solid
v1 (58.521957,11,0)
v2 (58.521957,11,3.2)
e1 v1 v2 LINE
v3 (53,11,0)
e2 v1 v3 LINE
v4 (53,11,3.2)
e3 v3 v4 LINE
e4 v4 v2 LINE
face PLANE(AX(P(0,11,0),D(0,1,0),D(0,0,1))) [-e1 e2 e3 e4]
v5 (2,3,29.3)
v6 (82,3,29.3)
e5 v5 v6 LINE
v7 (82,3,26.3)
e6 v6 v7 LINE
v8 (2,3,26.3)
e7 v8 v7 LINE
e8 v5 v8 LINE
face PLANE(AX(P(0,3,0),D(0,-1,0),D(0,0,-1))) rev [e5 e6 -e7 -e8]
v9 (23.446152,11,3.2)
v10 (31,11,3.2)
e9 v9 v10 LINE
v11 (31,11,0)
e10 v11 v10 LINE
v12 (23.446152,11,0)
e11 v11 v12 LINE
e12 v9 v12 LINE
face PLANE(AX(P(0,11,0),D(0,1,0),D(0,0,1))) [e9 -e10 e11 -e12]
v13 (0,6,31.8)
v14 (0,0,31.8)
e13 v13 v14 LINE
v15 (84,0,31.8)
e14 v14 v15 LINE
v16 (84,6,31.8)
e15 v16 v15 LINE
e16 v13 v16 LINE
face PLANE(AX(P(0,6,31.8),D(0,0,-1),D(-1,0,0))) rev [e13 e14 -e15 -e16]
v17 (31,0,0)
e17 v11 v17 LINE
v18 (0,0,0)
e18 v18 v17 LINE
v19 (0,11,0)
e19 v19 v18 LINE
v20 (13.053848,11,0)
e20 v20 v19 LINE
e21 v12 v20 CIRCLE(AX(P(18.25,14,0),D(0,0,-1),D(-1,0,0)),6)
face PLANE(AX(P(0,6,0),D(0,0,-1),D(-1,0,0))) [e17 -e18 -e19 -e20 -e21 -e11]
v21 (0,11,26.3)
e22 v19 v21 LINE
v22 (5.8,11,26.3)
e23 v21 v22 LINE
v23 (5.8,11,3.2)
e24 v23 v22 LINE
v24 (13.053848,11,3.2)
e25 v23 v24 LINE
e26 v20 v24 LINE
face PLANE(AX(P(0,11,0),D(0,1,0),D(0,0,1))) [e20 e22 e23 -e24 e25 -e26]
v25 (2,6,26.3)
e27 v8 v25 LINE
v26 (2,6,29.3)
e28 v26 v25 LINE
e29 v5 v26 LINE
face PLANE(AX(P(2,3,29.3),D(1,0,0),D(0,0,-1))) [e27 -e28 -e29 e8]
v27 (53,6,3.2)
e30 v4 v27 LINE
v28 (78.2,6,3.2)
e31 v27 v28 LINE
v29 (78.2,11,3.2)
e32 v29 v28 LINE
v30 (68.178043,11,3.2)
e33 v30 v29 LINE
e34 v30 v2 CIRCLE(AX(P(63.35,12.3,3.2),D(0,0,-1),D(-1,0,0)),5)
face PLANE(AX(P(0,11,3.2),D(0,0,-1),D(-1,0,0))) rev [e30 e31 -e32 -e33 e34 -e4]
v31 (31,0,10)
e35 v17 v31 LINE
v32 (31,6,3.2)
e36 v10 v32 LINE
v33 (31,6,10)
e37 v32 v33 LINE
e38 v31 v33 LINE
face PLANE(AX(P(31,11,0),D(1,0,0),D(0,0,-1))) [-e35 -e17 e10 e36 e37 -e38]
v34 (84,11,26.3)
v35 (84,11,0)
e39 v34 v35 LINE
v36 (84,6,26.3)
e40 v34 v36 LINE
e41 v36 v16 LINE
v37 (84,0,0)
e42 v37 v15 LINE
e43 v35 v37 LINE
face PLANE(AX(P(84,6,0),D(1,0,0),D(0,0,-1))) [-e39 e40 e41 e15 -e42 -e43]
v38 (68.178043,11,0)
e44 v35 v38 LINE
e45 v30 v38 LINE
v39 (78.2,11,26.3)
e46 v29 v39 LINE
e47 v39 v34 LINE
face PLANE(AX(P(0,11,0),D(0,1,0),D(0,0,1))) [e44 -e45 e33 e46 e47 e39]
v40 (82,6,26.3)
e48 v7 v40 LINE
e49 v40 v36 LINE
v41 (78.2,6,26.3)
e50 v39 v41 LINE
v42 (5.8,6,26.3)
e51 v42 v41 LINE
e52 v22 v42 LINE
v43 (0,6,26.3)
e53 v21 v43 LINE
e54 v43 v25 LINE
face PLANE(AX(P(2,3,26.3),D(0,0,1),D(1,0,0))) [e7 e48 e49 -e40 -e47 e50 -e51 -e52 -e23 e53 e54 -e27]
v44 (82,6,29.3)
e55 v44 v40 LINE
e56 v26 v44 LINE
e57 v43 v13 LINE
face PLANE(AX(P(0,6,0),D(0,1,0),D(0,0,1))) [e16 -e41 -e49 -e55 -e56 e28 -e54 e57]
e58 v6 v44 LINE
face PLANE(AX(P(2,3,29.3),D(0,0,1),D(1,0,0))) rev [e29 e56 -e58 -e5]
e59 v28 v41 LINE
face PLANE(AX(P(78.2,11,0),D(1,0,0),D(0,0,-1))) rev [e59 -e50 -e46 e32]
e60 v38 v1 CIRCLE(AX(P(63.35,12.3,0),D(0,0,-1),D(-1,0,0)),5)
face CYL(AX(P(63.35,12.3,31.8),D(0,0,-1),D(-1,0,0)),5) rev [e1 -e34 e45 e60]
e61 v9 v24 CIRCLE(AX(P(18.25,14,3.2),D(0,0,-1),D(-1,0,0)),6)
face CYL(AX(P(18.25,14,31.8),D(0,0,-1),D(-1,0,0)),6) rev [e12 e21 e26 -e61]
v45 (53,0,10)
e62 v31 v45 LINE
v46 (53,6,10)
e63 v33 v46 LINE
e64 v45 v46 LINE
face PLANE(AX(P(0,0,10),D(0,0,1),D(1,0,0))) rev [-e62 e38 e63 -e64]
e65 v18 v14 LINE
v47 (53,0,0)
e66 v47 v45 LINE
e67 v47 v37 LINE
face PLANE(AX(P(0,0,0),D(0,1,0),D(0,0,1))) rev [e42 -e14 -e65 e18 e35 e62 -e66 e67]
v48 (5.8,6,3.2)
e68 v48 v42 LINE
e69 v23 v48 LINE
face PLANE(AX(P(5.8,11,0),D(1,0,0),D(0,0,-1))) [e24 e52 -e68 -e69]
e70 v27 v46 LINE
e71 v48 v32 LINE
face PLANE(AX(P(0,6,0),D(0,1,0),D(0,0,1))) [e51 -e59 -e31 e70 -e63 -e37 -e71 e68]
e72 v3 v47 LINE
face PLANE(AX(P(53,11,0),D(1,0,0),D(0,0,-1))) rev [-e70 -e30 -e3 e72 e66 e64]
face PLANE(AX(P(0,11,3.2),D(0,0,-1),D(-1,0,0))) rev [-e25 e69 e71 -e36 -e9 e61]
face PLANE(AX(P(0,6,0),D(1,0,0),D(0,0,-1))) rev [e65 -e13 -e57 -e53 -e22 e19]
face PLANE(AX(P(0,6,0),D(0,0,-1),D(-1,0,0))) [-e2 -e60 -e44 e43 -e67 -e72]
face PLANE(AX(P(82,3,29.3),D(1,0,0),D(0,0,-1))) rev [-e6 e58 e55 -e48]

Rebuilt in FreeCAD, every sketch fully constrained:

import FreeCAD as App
import Part
import Sketcher

V = App.Vector
Q = App.Units.Quantity


def add_polygon(sketch, points):
    """Adds a closed chain of lines whose ends are joined by coincident constraints."""
    first, n = sketch.GeometryCount, len(points)
    for a, b in zip(points, points[1:] + points[:1]):
        sketch.addGeometry(Part.LineSegment(App.Vector(*a, 0), App.Vector(*b, 0)), False)
    for i in range(n):
        sketch.addConstraint(Sketcher.Constraint("Coincident", first + i, 2, first + (i + 1) % n, 1))

doc = App.newDocument("Part")
body = doc.addObject("PartDesign::Body", "Body")

sketch1 = body.newObject("Sketcher::SketchObject", "Sketch")
sketch1.AttachmentSupport = (doc.getObject("XZ_Plane"), [""])
sketch1.MapMode = "FlatFace"
add_polygon(sketch1, [(0, 0), (0, 31.8), (84, 31.8), (84, 0)])
sketch1.addConstraint(Sketcher.Constraint("Vertical", 0))
sketch1.addConstraint(Sketcher.Constraint("Horizontal", 1))
sketch1.addConstraint(Sketcher.Constraint("Vertical", 2))
sketch1.addConstraint(Sketcher.Constraint("Horizontal", 3))
sketch1.addConstraint(Sketcher.Constraint("Coincident", 3, 2, -1, 1))
sketch1.addConstraint(Sketcher.Constraint("DistanceX", 1, 1, 1, 2, Q("84 mm")))
sketch1.addConstraint(Sketcher.Constraint("DistanceY", 0, 1, 0, 2, Q("31.8 mm")))
pad1 = body.newObject("PartDesign::Pad", "Pad")
pad1.Profile = sketch1
pad1.Length = 6
pad1.Reversed = True

sketch2 = body.newObject("Sketcher::SketchObject", "Sketch001")
sketch2.AttachmentSupport = (doc.getObject("XZ_Plane"), [""])
sketch2.MapMode = "FlatFace"
sketch2.AttachmentOffset = App.Placement(V(0, 0, -6), App.Rotation())
add_polygon(sketch2, [(2, 26.3), (2, 29.3), (82, 29.3), (82, 26.3)])
sketch2.addConstraint(Sketcher.Constraint("Vertical", 0))
sketch2.addConstraint(Sketcher.Constraint("Horizontal", 1))
sketch2.addConstraint(Sketcher.Constraint("Vertical", 2))
sketch2.addConstraint(Sketcher.Constraint("Horizontal", 3))
sketch2.addConstraint(Sketcher.Constraint("DistanceX", 1, 1, 1, 2, Q("80 mm")))
sketch2.addConstraint(Sketcher.Constraint("DistanceY", 0, 1, 0, 2, Q("3 mm")))
sketch2.addConstraint(Sketcher.Constraint("DistanceX", -1, 1, 0, 2, Q("2 mm")))
sketch2.addConstraint(Sketcher.Constraint("DistanceY", -1, 1, 0, 2, Q("29.3 mm")))
pocket1 = body.newObject("PartDesign::Pocket", "Pocket")
pocket1.Profile = sketch2
pocket1.Length = 3
pocket1.Reversed = True

sketch3 = body.newObject("Sketcher::SketchObject", "Sketch002")
sketch3.AttachmentSupport = (doc.getObject("XZ_Plane"), [""])
sketch3.MapMode = "FlatFace"
sketch3.AttachmentOffset = App.Placement(V(0, 0, -6), App.Rotation())
add_polygon(sketch3, [(31, 0), (0, 0), (0, 26.3), (5.8, 26.3), (5.8, 3.2), (31, 3.2)])
add_polygon(sketch3, [(84, 0), (53, 0), (53, 3.2), (78.2, 3.2), (78.2, 26.3), (84, 26.3)])
sketch3.addConstraint(Sketcher.Constraint("Horizontal", 0))
sketch3.addConstraint(Sketcher.Constraint("Vertical", 1))
sketch3.addConstraint(Sketcher.Constraint("Horizontal", 2))
sketch3.addConstraint(Sketcher.Constraint("Vertical", 3))
sketch3.addConstraint(Sketcher.Constraint("Horizontal", 4))
sketch3.addConstraint(Sketcher.Constraint("Vertical", 5))
sketch3.addConstraint(Sketcher.Constraint("Horizontal", 6))
sketch3.addConstraint(Sketcher.Constraint("Vertical", 7))
sketch3.addConstraint(Sketcher.Constraint("Horizontal", 8))
sketch3.addConstraint(Sketcher.Constraint("Vertical", 9))
sketch3.addConstraint(Sketcher.Constraint("Horizontal", 10))
sketch3.addConstraint(Sketcher.Constraint("Vertical", 11))
sketch3.addConstraint(Sketcher.Constraint("Coincident", 0, 2, -1, 1))
sketch3.addConstraint(Sketcher.Constraint("PointOnObject", 6, 2, -1))
sketch3.addConstraint(Sketcher.Constraint("Horizontal", 4, 2, 7, 2))
sketch3.addConstraint(Sketcher.Constraint("Horizontal", 2, 2, 9, 2))
sketch3.addConstraint(Sketcher.Constraint("Equal", 0, 6))
sketch3.addConstraint(Sketcher.Constraint("Equal", 4, 8))
sketch3.addConstraint(Sketcher.Constraint("DistanceX", 0, 2, 0, 1, Q("31 mm")))
sketch3.addConstraint(Sketcher.Constraint("DistanceX", 2, 1, 2, 2, Q("5.8 mm")))
sketch3.addConstraint(Sketcher.Constraint("DistanceY", 1, 1, 1, 2, Q("26.3 mm")))
sketch3.addConstraint(Sketcher.Constraint("DistanceY", 3, 2, 3, 1, Q("23.1 mm")))
sketch3.addConstraint(Sketcher.Constraint("DistanceX", -1, 1, 6, 2, Q("53 mm")))
pad2 = body.newObject("PartDesign::Pad", "Pad001")
pad2.Profile = sketch3
pad2.Length = 5
pad2.Reversed = True

sketch4 = body.newObject("Sketcher::SketchObject", "Sketch003")
sketch4.AttachmentSupport = (doc.getObject("XY_Plane"), [""])
sketch4.MapMode = "FlatFace"
sketch4.addGeometry(Part.Circle(V(63.35, 12.3, 0), V(0, 0, 1), 5), False)
sketch4.addGeometry(Part.Circle(V(18.25, 14, 0), V(0, 0, 1), 6), False)
sketch4.addConstraint(Sketcher.Constraint("Diameter", 0, Q("10 mm")))
sketch4.addConstraint(Sketcher.Constraint("Diameter", 1, Q("12 mm")))
sketch4.addConstraint(Sketcher.Constraint("DistanceY", -1, 1, 1, 3, Q("14 mm")))
sketch4.addConstraint(Sketcher.Constraint("DistanceY", -1, 1, 0, 3, Q("12.3 mm")))
sketch4.addConstraint(Sketcher.Constraint("DistanceX", 1, 3, 0, 3, Q("45.1 mm")))
sketch4.addConstraint(Sketcher.Constraint("DistanceX", -1, 1, 0, 3, Q("63.35 mm")))
pocket2 = body.newObject("PartDesign::Pocket", "Pocket001")
pocket2.Profile = sketch4
pocket2.Type = "ThroughAll"
pocket2.Reversed = True

sketch5 = body.newObject("Sketcher::SketchObject", "Sketch004")
sketch5.AttachmentSupport = (doc.getObject("XZ_Plane"), [""])
sketch5.MapMode = "FlatFace"
sketch5.AttachmentOffset = App.Placement(V(0, 0, -6), App.Rotation())
add_polygon(sketch5, [(31, 0), (31, 10), (53, 10), (53, 0)])
sketch5.addConstraint(Sketcher.Constraint("Vertical", 0))
sketch5.addConstraint(Sketcher.Constraint("Horizontal", 1))
sketch5.addConstraint(Sketcher.Constraint("Vertical", 2))
sketch5.addConstraint(Sketcher.Constraint("Horizontal", 3))
sketch5.addConstraint(Sketcher.Constraint("PointOnObject", 2, 2, -1))
sketch5.addConstraint(Sketcher.Constraint("DistanceX", 1, 1, 1, 2, Q("22 mm")))
sketch5.addConstraint(Sketcher.Constraint("DistanceY", 0, 1, 0, 2, Q("10 mm")))
sketch5.addConstraint(Sketcher.Constraint("DistanceX", -1, 1, 0, 2, Q("31 mm")))
pocket3 = body.newObject("PartDesign::Pocket", "Pocket002")
pocket3.Profile = sketch5
pocket3.Type = "ThroughAll"
pocket3.Reversed = True

doc.recompute()
